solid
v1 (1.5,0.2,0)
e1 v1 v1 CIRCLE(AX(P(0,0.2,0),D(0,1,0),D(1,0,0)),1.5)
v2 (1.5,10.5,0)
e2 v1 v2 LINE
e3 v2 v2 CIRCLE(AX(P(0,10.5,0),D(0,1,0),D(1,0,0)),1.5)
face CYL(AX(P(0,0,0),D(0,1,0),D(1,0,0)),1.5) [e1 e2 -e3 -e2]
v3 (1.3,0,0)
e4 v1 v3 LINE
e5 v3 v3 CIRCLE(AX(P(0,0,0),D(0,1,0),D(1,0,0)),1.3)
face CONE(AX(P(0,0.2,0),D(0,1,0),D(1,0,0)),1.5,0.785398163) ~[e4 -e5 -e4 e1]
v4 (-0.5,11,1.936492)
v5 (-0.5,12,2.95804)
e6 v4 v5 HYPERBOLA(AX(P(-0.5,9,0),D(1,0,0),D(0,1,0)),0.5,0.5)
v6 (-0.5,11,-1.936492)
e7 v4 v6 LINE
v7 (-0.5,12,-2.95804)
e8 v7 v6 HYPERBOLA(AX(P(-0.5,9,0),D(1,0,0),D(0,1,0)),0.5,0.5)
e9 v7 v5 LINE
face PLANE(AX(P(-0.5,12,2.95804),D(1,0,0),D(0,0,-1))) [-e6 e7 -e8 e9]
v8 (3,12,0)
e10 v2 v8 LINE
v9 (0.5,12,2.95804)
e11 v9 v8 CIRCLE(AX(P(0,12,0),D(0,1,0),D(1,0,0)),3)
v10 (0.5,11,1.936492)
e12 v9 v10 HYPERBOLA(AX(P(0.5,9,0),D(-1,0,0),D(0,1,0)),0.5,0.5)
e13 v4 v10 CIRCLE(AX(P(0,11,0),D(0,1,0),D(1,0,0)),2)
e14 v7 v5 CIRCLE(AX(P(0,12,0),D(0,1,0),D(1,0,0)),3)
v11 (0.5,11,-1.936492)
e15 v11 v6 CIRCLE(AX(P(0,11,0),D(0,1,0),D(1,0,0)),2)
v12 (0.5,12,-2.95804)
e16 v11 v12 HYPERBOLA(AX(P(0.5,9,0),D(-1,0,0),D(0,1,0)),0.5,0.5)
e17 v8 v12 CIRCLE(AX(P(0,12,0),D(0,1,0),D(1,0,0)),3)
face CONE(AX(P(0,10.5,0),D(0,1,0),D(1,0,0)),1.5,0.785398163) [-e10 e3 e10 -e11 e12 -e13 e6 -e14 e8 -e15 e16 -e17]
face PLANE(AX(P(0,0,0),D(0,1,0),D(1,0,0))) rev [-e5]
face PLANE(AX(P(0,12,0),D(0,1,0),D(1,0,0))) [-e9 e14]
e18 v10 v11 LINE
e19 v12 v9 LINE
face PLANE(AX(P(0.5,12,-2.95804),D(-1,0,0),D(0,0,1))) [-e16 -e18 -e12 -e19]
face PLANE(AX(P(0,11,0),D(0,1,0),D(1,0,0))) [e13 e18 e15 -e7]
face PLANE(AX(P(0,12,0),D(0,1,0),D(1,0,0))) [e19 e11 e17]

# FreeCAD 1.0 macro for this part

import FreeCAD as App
import Part
import Sketcher

V = App.Vector
Q = App.Units.Quantity


def edges_at(feature, points):
    """Names of the edges that pass closest to the given points."""
    edges = feature.Shape.Edges
    near = lambda p: min(range(len(edges)), key=lambda i: edges[i].distToShape(Part.Vertex(*p))[0])
    return sorted({f"Edge{near(p) + 1}" for p in points})

doc = App.newDocument("Part")
body = doc.addObject("PartDesign::Body", "Body")

# Sketch on XY plane
sketch1 = body.newObject("Sketcher::SketchObject", "Sketch")
sketch1.AttachmentSupport = (doc.getObject("XY_Plane"), [""])
sketch1.MapMode = "FlatFace"
sketch1.addGeometry(Part.LineSegment(V(0, 12, 0), V(0, 0, 0)), False)
sketch1.addGeometry(Part.LineSegment(V(0, 0, 0), V(1.5, 0, 0)), False)
sketch1.addGeometry(Part.LineSegment(V(1.5, 0, 0), V(1.5, 10.5, 0)), False)
sketch1.addGeometry(Part.LineSegment(V(1.5, 10.5, 0), V(3, 12, 0)), False)
sketch1.addGeometry(Part.LineSegment(V(3, 12, 0), V(0, 12, 0)), False)
sketch1.addConstraint(Sketcher.Constraint("Coincident", 0, 2, 1, 1))
sketch1.addConstraint(Sketcher.Constraint("Coincident", 1, 2, 2, 1))
sketch1.addConstraint(Sketcher.Constraint("Coincident", 2, 2, 3, 1))
sketch1.addConstraint(Sketcher.Constraint("Coincident", 3, 2, 4, 1))
sketch1.addConstraint(Sketcher.Constraint("Coincident", 4, 2, 0, 1))
sketch1.addConstraint(Sketcher.Constraint("Vertical", 0))
sketch1.addConstraint(Sketcher.Constraint("Horizontal", 1))
sketch1.addConstraint(Sketcher.Constraint("Vertical", 2))
sketch1.addConstraint(Sketcher.Constraint("Horizontal", 4))
sketch1.addConstraint(Sketcher.Constraint("Coincident", 0, 2, -1, 1))
sketch1.addConstraint(Sketcher.Constraint("DistanceX", 4, 2, 4, 1, 3.0))
sketch1.addConstraint(Sketcher.Constraint("DistanceY", 0, 2, 0, 1, 12.0))
sketch1.addConstraint(Sketcher.Constraint("Angle", 3, Q("45 deg")))
sketch1.addConstraint(Sketcher.Constraint("DistanceX", 1, 1, 1, 2, 1.5))
revolution = body.newObject("PartDesign::Revolution", "Revolution")
revolution.Profile = sketch1
revolution.ReferenceAxis = (sketch1, ["V_Axis"])
revolution.Angle = 360

# Sketch on XZ plane
sketch2 = body.newObject("Sketcher::SketchObject", "Sketch001")
sketch2.AttachmentSupport = (doc.getObject("XZ_Plane"), [""])
sketch2.MapMode = "FlatFace"
sketch2.AttachmentOffset = App.Placement(V(0, 0, -12), App.Rotation())
sketch2.addGeometry(Part.LineSegment(V(0.5, -5, 0), V(-0.5, -5, 0)), False)
sketch2.addGeometry(Part.LineSegment(V(-0.5, -5, 0), V(-0.5, 4.4, 0)), False)
sketch2.addGeometry(Part.LineSegment(V(-0.5, 4.4, 0), V(0.5, 4.4, 0)), False)
sketch2.addGeometry(Part.LineSegment(V(0.5, 4.4, 0), V(0.5, -5, 0)), False)
sketch2.addConstraint(Sketcher.Constraint("Coincident", 0, 2, 1, 1))
sketch2.addConstraint(Sketcher.Constraint("Coincident", 1, 2, 2, 1))
sketch2.addConstraint(Sketcher.Constraint("Coincident", 2, 2, 3, 1))
sketch2.addConstraint(Sketcher.Constraint("Coincident", 3, 2, 0, 1))
sketch2.addConstraint(Sketcher.Constraint("Horizontal", 0))
sketch2.addConstraint(Sketcher.Constraint("Vertical", 1))
sketch2.addConstraint(Sketcher.Constraint("Horizontal", 2))
sketch2.addConstraint(Sketcher.Constraint("Vertical", 3))
sketch2.addConstraint(Sketcher.Constraint("DistanceX", 0, 2, 0, 1, 1.0))
sketch2.addConstraint(Sketcher.Constraint("DistanceX", 0, 2, -1, 1, 0.5))
sketch2.addConstraint(Sketcher.Constraint("DistanceY", 1, 1, 1, 2, 9.4458))
sketch2.addConstraint(Sketcher.Constraint("DistanceY", -1, 1, 1, 2, 4.425))
pocket1 = body.newObject("PartDesign::Pocket", "Pocket")
pocket1.Profile = sketch2
pocket1.Length = 1
pocket1.Reversed = True
doc.recompute()

chamfer = body.newObject("PartDesign::Chamfer", "Chamfer")
chamfer.Base = (pocket1, edges_at(pocket1, [(-1.5, 0, 0)]))
chamfer.Size = 0.2

doc.recompute()
